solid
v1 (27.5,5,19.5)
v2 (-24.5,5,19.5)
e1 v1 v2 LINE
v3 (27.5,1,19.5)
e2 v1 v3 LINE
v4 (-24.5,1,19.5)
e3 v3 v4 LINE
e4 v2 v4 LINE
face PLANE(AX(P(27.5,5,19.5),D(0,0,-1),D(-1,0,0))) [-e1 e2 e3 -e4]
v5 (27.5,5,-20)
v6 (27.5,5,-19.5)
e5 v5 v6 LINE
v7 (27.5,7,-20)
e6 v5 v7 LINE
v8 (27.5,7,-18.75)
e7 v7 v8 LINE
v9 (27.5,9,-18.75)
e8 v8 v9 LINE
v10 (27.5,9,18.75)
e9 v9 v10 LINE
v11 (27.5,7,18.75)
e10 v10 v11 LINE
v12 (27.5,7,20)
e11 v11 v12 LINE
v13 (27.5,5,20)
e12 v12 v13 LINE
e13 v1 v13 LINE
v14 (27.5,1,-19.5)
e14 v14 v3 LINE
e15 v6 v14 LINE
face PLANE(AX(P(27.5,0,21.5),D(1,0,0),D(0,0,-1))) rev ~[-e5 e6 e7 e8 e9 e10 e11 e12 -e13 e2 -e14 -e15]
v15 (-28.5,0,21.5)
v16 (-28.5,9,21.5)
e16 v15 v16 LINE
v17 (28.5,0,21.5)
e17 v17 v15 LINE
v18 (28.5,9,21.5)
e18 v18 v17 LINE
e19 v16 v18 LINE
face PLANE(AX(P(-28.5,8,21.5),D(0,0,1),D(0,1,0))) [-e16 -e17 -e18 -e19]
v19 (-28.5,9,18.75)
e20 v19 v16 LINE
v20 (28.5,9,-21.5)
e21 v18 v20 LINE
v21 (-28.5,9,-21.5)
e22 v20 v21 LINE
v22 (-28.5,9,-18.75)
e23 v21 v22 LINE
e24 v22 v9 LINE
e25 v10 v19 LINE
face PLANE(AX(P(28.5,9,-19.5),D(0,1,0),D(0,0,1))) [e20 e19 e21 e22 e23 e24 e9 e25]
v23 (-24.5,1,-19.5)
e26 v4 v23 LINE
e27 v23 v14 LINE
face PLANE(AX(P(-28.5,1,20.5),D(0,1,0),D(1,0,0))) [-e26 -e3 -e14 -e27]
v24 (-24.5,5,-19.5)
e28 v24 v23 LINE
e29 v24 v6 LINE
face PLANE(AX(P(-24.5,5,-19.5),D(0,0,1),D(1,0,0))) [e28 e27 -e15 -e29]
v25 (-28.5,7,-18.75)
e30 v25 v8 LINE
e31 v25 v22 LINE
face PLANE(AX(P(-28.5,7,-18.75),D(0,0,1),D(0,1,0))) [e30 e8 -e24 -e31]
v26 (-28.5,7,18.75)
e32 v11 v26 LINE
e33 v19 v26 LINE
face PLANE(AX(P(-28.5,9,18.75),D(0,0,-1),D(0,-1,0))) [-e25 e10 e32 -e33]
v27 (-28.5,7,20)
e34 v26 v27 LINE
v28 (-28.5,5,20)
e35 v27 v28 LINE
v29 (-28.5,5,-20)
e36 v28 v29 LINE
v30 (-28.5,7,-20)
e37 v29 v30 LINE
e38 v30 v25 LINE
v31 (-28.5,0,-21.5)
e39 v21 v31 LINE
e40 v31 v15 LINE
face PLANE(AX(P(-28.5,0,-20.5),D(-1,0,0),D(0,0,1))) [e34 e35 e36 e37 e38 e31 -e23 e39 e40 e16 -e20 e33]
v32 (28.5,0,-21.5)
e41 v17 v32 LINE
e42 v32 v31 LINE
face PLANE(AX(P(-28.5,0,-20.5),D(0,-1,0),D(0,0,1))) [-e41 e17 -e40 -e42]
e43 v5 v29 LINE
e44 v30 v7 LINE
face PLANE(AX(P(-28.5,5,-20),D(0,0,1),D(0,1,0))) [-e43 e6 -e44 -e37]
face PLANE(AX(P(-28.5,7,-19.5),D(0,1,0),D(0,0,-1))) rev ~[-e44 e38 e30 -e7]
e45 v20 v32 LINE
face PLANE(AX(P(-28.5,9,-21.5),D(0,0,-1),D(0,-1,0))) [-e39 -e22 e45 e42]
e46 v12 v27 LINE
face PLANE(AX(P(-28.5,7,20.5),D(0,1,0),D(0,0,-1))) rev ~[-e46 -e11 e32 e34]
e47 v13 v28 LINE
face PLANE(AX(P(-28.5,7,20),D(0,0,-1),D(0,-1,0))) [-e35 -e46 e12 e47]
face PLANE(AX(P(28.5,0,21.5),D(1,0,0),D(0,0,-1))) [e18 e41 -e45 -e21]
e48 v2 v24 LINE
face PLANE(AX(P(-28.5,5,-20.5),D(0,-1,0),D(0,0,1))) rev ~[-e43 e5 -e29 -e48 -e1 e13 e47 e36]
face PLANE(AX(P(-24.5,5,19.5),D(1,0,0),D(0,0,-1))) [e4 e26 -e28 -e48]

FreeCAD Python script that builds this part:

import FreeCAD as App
import Part
import Sketcher
from FreeCAD import Vector


def add_polygon(sketch, points):
    """Adds a closed chain of lines whose ends are joined by coincident constraints."""
    first, n = sketch.GeometryCount, len(points)
    for a, b in zip(points, points[1:] + points[:1]):
        sketch.addGeometry(Part.LineSegment(App.Vector(*a, 0), App.Vector(*b, 0)), False)
    for i in range(n):
        sketch.addConstraint(Sketcher.Constraint("Coincident", first + i, 2, first + (i + 1) % n, 1))

doc = App.newDocument("Part")
params = doc.addObject("Spreadsheet::Sheet", "Params")
for row, (alias, value) in enumerate([
    ("sketch1_width", "57 mm"),
    ("sketch1_height", "41 mm"),
    ("pad1_length", "8 mm"),
    ("sketch2_width", "51 mm"),
    ("sketch2_height", "35 mm"),
    ("pocket1_length", "6 mm"),
    ("sketch3_height", "35 mm"),
    ("sketch3_width", "4 mm"),
    ("pocket2_length", "6 mm"),
    ("sketch4_width", "1 mm"),
    ("pocket3_length", "55 mm"),
    ("sketch5_width", "1 mm"),
    ("pocket4_length", "55 mm"),
    ("sketch6_width", "1 mm"),
    ("pocket5_length", "55 mm"),
    ("sketch7_width", "1 mm"),
    ("pocket6_length", "55 mm"),
    ("sketch8_width", "1 mm"),
    ("sketch8_width2", "4 mm"),
    ("sketch8_height", "37 mm"),
    ("sketch8_height2", "2 mm"),
    ("pocket7_length", "1 mm"),
    ("sketch9_width", "4 mm"),
    ("sketch9_height", "35 mm"),
    ("pad2_length", "4 mm"),
    ("sketch10_width", "2 mm"),
    ("sketch10_height", "1 mm"),
    ("sketch10_width2", "9 mm"),
    ("pad3_length", "57 mm"),
    ("sketch11_width", "1 mm"),
    ("sketch11_width2", "2 mm"),
    ("sketch11_height", "41 mm"),
    ("pocket8_length", "56 mm"),
    ("sketch12_width", "1 mm"),
    ("sketch12_height", "39 mm"),
    ("pad4_length", "1 mm"),
    ("sketch13_width", "52 mm"),
    ("sketch13_height", "39 mm"),
    ("pocket9_length", "4 mm"),
    ("sketch14_width", "2 mm"),
    ("sketch14_height", "40 mm"),
    ("sketch14_height2", "1.25 mm"),
    ("sketch14_width2", "9 mm"),
    ("sketch14_height3", "43 mm"),
    ("pad5_length", "4 mm"),
    ("sketch15_width", "2 mm"),
    ("sketch15_height", "0.5 mm"),
    ("sketch15_height2", "0.75 mm"),
    ("pad6_length", "53 mm"),
], start=1):
    params.set(f"A{row}", alias)
    params.set(f"B{row}", "=" + value)
    params.setAlias(f"B{row}", alias)

body = doc.addObject("PartDesign::Body", "Body")

# Sketch on XZ plane
sketch1 = body.newObject("Sketcher::SketchObject", "Sketch")
sketch1.AttachmentSupport = (doc.getObject("XZ_Plane"), [""])
sketch1.MapMode = "FlatFace"
add_polygon(sketch1, [(-28.5, -20.5), (-28.5, 20.5), (28.5, 20.5), (28.5, -20.5)])  # lines 0-3
sketch1.addConstraint([
    Sketcher.Constraint("Vertical", 0),
    Sketcher.Constraint("Horizontal", 1),
    Sketcher.Constraint("Vertical", 2),
    Sketcher.Constraint("Horizontal", 3),
    Sketcher.Constraint("Symmetric", 0, 2, 2, 2, -1, 1),
    Sketcher.Constraint("DistanceX", 1, 1, 1, 2, 57.0),
    Sketcher.Constraint("DistanceY", 0, 1, 0, 2, 41.0),
])
sketch1.setExpression("Constraints[9]", "Params.sketch1_width")
sketch1.setExpression("Constraints[10]", "Params.sketch1_height")
pad1 = body.newObject("PartDesign::Pad", "Pad")
pad1.Profile = sketch1
pad1.setExpression("Length", "Params.pad1_length")
pad1.Reversed = True

# Sketch on XZ plane
sketch2 = body.newObject("Sketcher::SketchObject", "Sketch001")
sketch2.AttachmentSupport = (doc.getObject("XZ_Plane"), [""])
sketch2.MapMode = "FlatFace"
sketch2.AttachmentOffset = App.Placement(Vector(0, 0, -8), App.Rotation())
add_polygon(sketch2, [(-24.5, 17.5), (26.5, 17.5), (26.5, -17.5), (-24.5, -17.5)])  # lines 0-3
sketch2.addConstraint([
    Sketcher.Constraint("Horizontal", 0),
    Sketcher.Constraint("Vertical", 1),
    Sketcher.Constraint("Horizontal", 2),
    Sketcher.Constraint("Vertical", 3),
    Sketcher.Constraint("DistanceX", 0, 1, 0, 2, 51.0),
    Sketcher.Constraint("DistanceY", 1, 2, 1, 1, 35.0),
    Sketcher.Constraint("DistanceX", -1, 1, 0, 2, 26.5),
    Sketcher.Constraint("DistanceY", -1, 1, 0, 2, 17.5),
])
sketch2.setExpression("Constraints[8]", "Params.sketch2_width")
sketch2.setExpression("Constraints[9]", "Params.sketch2_height")
pocket1 = body.newObject("PartDesign::Pocket", "Pocket")
pocket1.Profile = sketch2
pocket1.setExpression("Length", "Params.pocket1_length")
pocket1.Reversed = True

# Sketch on XZ plane
sketch3 = body.newObject("Sketcher::SketchObject", "Sketch002")
sketch3.AttachmentSupport = (doc.getObject("XZ_Plane"), [""])
sketch3.MapMode = "FlatFace"
sketch3.AttachmentOffset = App.Placement(Vector(0, 0, -8), App.Rotation())
add_polygon(sketch3, [(-28.5, 17.5), (-24.5, 17.5), (-24.5, -17.5), (-28.5, -17.5)])  # lines 0-3
sketch3.addConstraint([
    Sketcher.Constraint("Horizontal", 0),
    Sketcher.Constraint("Vertical", 1),
    Sketcher.Constraint("Horizontal", 2),
    Sketcher.Constraint("Vertical", 3),
    Sketcher.Constraint("DistanceY", 1, 2, 1, 1, 35.0),
    Sketcher.Constraint("DistanceX", 0, 1, 0, 2, 4.0),
    Sketcher.Constraint("DistanceX", 0, 2, -1, 1, 24.5),
    Sketcher.Constraint("DistanceY", -1, 1, 0, 2, 17.5),
])
sketch3.setExpression("Constraints[8]", "Params.sketch3_height")
sketch3.setExpression("Constraints[9]", "Params.sketch3_width")
pocket2 = body.newObject("PartDesign::Pocket", "Pocket001")
pocket2.Profile = sketch3
pocket2.setExpression("Length", "Params.pocket2_length")
pocket2.Reversed = True

# Sketch on YZ plane
sketch4 = body.newObject("Sketcher::SketchObject", "Sketch003")
sketch4.AttachmentSupport = (doc.getObject("YZ_Plane"), [""])
sketch4.MapMode = "FlatFace"
sketch4.AttachmentOffset = App.Placement(Vector(0, 0, -28.5), App.Rotation())
add_polygon(sketch4, [(6, -17.5), (7, -17.5), (7, -18.5), (6, -18.5)])  # lines 0-3
sketch4.addConstraint([
    Sketcher.Constraint("Horizontal", 0),
    Sketcher.Constraint("Vertical", 1),
    Sketcher.Constraint("Horizontal", 2),
    Sketcher.Constraint("Vertical", 3),
    Sketcher.Constraint("Equal", 2, 1),
    Sketcher.Constraint("DistanceX", 0, 1, 0, 2, 1.0),
    Sketcher.Constraint("DistanceX", -1, 1, 0, 2, 7.0),
    Sketcher.Constraint("DistanceY", 0, 2, -1, 1, 17.5),
])
sketch4.setExpression("Constraints[9]", "Params.sketch4_width")
pocket3 = body.newObject("PartDesign::Pocket", "Pocket002")
pocket3.Profile = sketch4
pocket3.setExpression("Length", "Params.pocket3_length")
pocket3.Reversed = True

# Sketch on YZ plane
sketch5 = body.newObject("Sketcher::SketchObject", "Sketch004")
sketch5.AttachmentSupport = (doc.getObject("YZ_Plane"), [""])
sketch5.MapMode = "FlatFace"
sketch5.AttachmentOffset = App.Placement(Vector(0, 0, -28.5), App.Rotation())
add_polygon(sketch5, [(7, 18.5), (7, 17.5), (6, 17.5), (6, 18.5)])  # lines 0-3
sketch5.addConstraint([
    Sketcher.Constraint("Vertical", 0),
    Sketcher.Constraint("Horizontal", 1),
    Sketcher.Constraint("Vertical", 2),
    Sketcher.Constraint("Horizontal", 3),
    Sketcher.Constraint("Equal", 3, 0),
    Sketcher.Constraint("DistanceX", 1, 2, 1, 1, 1.0),
    Sketcher.Constraint("DistanceX", -1, 1, 0, 2, 7.0),
    Sketcher.Constraint("DistanceY", -1, 1, 0, 2, 17.5),
])
sketch5.setExpression("Constraints[9]", "Params.sketch5_width")
pocket4 = body.newObject("PartDesign::Pocket", "Pocket003")
pocket4.Profile = sketch5
pocket4.setExpression("Length", "Params.pocket4_length")
pocket4.Reversed = True

# Sketch on YZ plane
sketch6 = body.newObject("Sketcher::SketchObject", "Sketch005")
sketch6.AttachmentSupport = (doc.getObject("YZ_Plane"), [""])
sketch6.MapMode = "FlatFace"
sketch6.AttachmentOffset = App.Placement(Vector(0, 0, -28.5), App.Rotation())
add_polygon(sketch6, [(8, -17.5), (8, -18.5), (7, -18.5), (7, -19.5), (6, -19.5), (6, -17.5)])  # lines 0-5
sketch6.addConstraint([
    Sketcher.Constraint("Vertical", 0),
    Sketcher.Constraint("Horizontal", 1),
    Sketcher.Constraint("Vertical", 2),
    Sketcher.Constraint("Horizontal", 3),
    Sketcher.Constraint("Vertical", 4),
    Sketcher.Constraint("Horizontal", 5),
    Sketcher.Constraint("Equal", 1, 3),
    Sketcher.Constraint("Equal", 3, 0),
    Sketcher.Constraint("Equal", 0, 2),
    Sketcher.Constraint("DistanceX", 1, 2, 1, 1, 1.0),
    Sketcher.Constraint("DistanceX", -1, 1, 0, 2, 8.0),
    Sketcher.Constraint("DistanceY", 0, 2, -1, 1, 18.5),
])
sketch6.setExpression("Constraints[15]", "Params.sketch6_width")
pocket5 = body.newObject("PartDesign::Pocket", "Pocket004")
pocket5.Profile = sketch6
pocket5.setExpression("Length", "Params.pocket5_length")
pocket5.Reversed = True

# Sketch on YZ plane
sketch7 = body.newObject("Sketcher::SketchObject", "Sketch006")
sketch7.AttachmentSupport = (doc.getObject("YZ_Plane"), [""])
sketch7.MapMode = "FlatFace"
sketch7.AttachmentOffset = App.Placement(Vector(0, 0, -28.5), App.Rotation())
add_polygon(sketch7, [(6, 17.5), (6, 19.5), (7, 19.5), (7, 18.5), (8, 18.5), (8, 17.5)])  # lines 0-5
sketch7.addConstraint([
    Sketcher.Constraint("Vertical", 0),
    Sketcher.Constraint("Horizontal", 1),
    Sketcher.Constraint("Vertical", 2),
    Sketcher.Constraint("Horizontal", 3),
    Sketcher.Constraint("Vertical", 4),
    Sketcher.Constraint("Horizontal", 5),
    Sketcher.Constraint("Equal", 1, 3),
    Sketcher.Constraint("Equal", 5, 0),
    Sketcher.Constraint("Equal", 3, 2),
    Sketcher.Constraint("DistanceX", 1, 1, 1, 2, 1.0),
    Sketcher.Constraint("DistanceX", -1, 1, 0, 2, 6.0),
    Sketcher.Constraint("DistanceY", -1, 1, 0, 2, 19.5),
])
sketch7.setExpression("Constraints[15]", "Params.sketch7_width")
pocket6 = body.newObject("PartDesign::Pocket", "Pocket005")
pocket6.Profile = sketch7
pocket6.setExpression("Length", "Params.pocket6_length")
pocket6.Reversed = True

# Sketch on YZ plane
sketch8 = body.newObject("Sketcher::SketchObject", "Sketch007")
sketch8.AttachmentSupport = (doc.getObject("YZ_Plane"), [""])
sketch8.MapMode = "FlatFace"
sketch8.AttachmentOffset = App.Placement(Vector(0, 0, 26.5), App.Rotation())
add_polygon(sketch8, [(8, 18.5), (8, -18.5), (7, -18.5), (7, -19.5), (6, -19.5), (6, -17.5), (2, -17.5), (2, 17.5), (6, 17.5), (6, 19.5), (7, 19.5), (7, 18.5)])  # lines 0-11
sketch8.addConstraint([
    Sketcher.Constraint("Vertical", 0),
    Sketcher.Constraint("Horizontal", 1),
    Sketcher.Constraint("Vertical", 2),
    Sketcher.Constraint("Horizontal", 3),
    Sketcher.Constraint("Vertical", 4),
    Sketcher.Constraint("Horizontal", 5),
    Sketcher.Constraint("Vertical", 6),
    Sketcher.Constraint("Horizontal", 7),
    Sketcher.Constraint("Vertical", 8),
    Sketcher.Constraint("Horizontal", 9),
    Sketcher.Constraint("Vertical", 10),
    Sketcher.Constraint("Horizontal", 11),
    Sketcher.Constraint("Symmetric", 4, 2, 7, 2, -1),
    Sketcher.Constraint("Symmetric", 2, 2, 9, 2, -1),
    Sketcher.Constraint("Equal", 1, 3),
    Sketcher.Constraint("Equal", 11, 2),
    Sketcher.Constraint("Equal", 2, 10),
    Sketcher.Constraint("DistanceX", 1, 2, 1, 1, 1.0),
    Sketcher.Constraint("DistanceX", 5, 2, 5, 1, 4.0),
    Sketcher.Constraint("DistanceY", 0, 2, 0, 1, 37.0),
    Sketcher.Constraint("DistanceY", 4, 1, 4, 2, 2.0),
    Sketcher.Constraint("DistanceX", -1, 1, 0, 2, 8.0),
])
sketch8.setExpression("Constraints[29]", "Params.sketch8_width")
sketch8.setExpression("Constraints[30]", "Params.sketch8_width2")
sketch8.setExpression("Constraints[31]", "Params.sketch8_height")
sketch8.setExpression("Constraints[32]", "Params.sketch8_height2")
pocket7 = body.newObject("PartDesign::Pocket", "Pocket006")
pocket7.Profile = sketch8
pocket7.setExpression("Length", "Params.pocket7_length")
pocket7.Reversed = True

# Sketch on YZ plane
sketch9 = body.newObject("Sketcher::SketchObject", "Sketch008")
sketch9.AttachmentSupport = (doc.getObject("YZ_Plane"), [""])
sketch9.MapMode = "FlatFace"
sketch9.AttachmentOffset = App.Placement(Vector(0, 0, -28.5), App.Rotation())
add_polygon(sketch9, [(6, -17.5), (2, -17.5), (2, 17.5), (6, 17.5)])  # lines 0-3
sketch9.addConstraint([
    Sketcher.Constraint("Horizontal", 0),
    Sketcher.Constraint("Vertical", 1),
    Sketcher.Constraint("Horizontal", 2),
    Sketcher.Constraint("Vertical", 3),
    Sketcher.Constraint("DistanceX", 0, 2, 0, 1, 4.0),
    Sketcher.Constraint("DistanceY", 1, 1, 1, 2, 35.0),
    Sketcher.Constraint("DistanceX", -1, 1, 0, 2, 2.0),
    Sketcher.Constraint("DistanceY", 0, 2, -1, 1, 17.5),
])
sketch9.setExpression("Constraints[8]", "Params.sketch9_width")
sketch9.setExpression("Constraints[9]", "Params.sketch9_height")
pad2 = body.newObject("PartDesign::Pad", "Pad001")
pad2.Profile = sketch9
pad2.setExpression("Length", "Params.pad2_length")

# Sketch on YZ plane
sketch10 = body.newObject("Sketcher::SketchObject", "Sketch009")
sketch10.AttachmentSupport = (doc.getObject("YZ_Plane"), [""])
sketch10.MapMode = "FlatFace"
sketch10.AttachmentOffset = App.Placement(Vector(0, 0, -28.5), App.Rotation())
add_polygon(sketch10, [(5, 20.5), (5, -20.5), (7, -20.5), (7, -19.5), (9, -19.5), (9, -21.5), (0, -21.5), (0, 21.5), (9, 21.5), (9, 19.5), (7, 19.5), (7, 20.5)])  # lines 0-11
sketch10.addConstraint([
    Sketcher.Constraint("Vertical", 0),
    Sketcher.Constraint("Horizontal", 1),
    Sketcher.Constraint("Vertical", 2),
    Sketcher.Constraint("Horizontal", 3),
    Sketcher.Constraint("Vertical", 4),
    Sketcher.Constraint("Horizontal", 5),
    Sketcher.Constraint("Vertical", 6),
    Sketcher.Constraint("Horizontal", 7),
    Sketcher.Constraint("Vertical", 8),
    Sketcher.Constraint("Horizontal", 9),
    Sketcher.Constraint("Vertical", 10),
    Sketcher.Constraint("Horizontal", 11),
    Sketcher.Constraint("Symmetric", 5, 2, 6, 2, -1, 1),
    Sketcher.Constraint("Symmetric", 3, 2, 8, 2, -1),
    Sketcher.Constraint("Symmetric", 1, 2, 10, 2, -1),
    Sketcher.Constraint("Equal", 1, 3),
    Sketcher.Constraint("Equal", 11, 4),
    Sketcher.Constraint("DistanceX", 1, 1, 1, 2, 2.0),
    Sketcher.Constraint("DistanceY", 2, 1, 2, 2, 1.0),
    Sketcher.Constraint("DistanceY", 0, 2, 6, 2, 42.0),
    Sketcher.Constraint("DistanceX", 5, 2, 5, 1, 9.0),
])
sketch10.setExpression("Constraints[29]", "Params.sketch10_width")
sketch10.setExpression("Constraints[30]", "Params.sketch10_height")
sketch10.setExpression("Constraints[32]", "Params.sketch10_width2")
pad3 = body.newObject("PartDesign::Pad", "Pad002")
pad3.Profile = sketch10
pad3.setExpression("Length", "Params.pad3_length")

# Sketch on YZ plane
sketch11 = body.newObject("Sketcher::SketchObject", "Sketch010")
sketch11.AttachmentSupport = (doc.getObject("YZ_Plane"), [""])
sketch11.MapMode = "FlatFace"
sketch11.AttachmentOffset = App.Placement(Vector(0, 0, -28.5), App.Rotation())
add_polygon(sketch11, [(7, 19.5), (8, 19.5), (8, 18.5), (7, 18.5)])  # lines 0-3
add_polygon(sketch11, [(7, 20.5), (7, 19.5), (6, 19.5), (6, -19.5), (7, -19.5), (7, -20.5), (5, -20.5), (5, 20.5)])  # lines 4-11
add_polygon(sketch11, [(7, -18.5), (8, -18.5), (8, -19.5), (7, -19.5)])  # lines 12-15
sketch11.addConstraint([
    Sketcher.Constraint("Horizontal", 0),
    Sketcher.Constraint("Vertical", 1),
    Sketcher.Constraint("Horizontal", 2),
    Sketcher.Constraint("Vertical", 3),
    Sketcher.Constraint("Vertical", 4),
    Sketcher.Constraint("Horizontal", 5),
    Sketcher.Constraint("Vertical", 6),
    Sketcher.Constraint("Horizontal", 7),
    Sketcher.Constraint("Vertical", 8),
    Sketcher.Constraint("Horizontal", 9),
    Sketcher.Constraint("Vertical", 10),
    Sketcher.Constraint("Horizontal", 11),
    Sketcher.Constraint("Horizontal", 12),
    Sketcher.Constraint("Vertical", 13),
    Sketcher.Constraint("Horizontal", 14),
    Sketcher.Constraint("Vertical", 15),
    Sketcher.Constraint("Coincident", 4, 2, 3, 2),
    Sketcher.Constraint("Coincident", 14, 2, 7, 2),
    Sketcher.Constraint("Symmetric", 3, 2, 7, 2, -1),
    Sketcher.Constraint("Symmetric", 1, 2, 12, 2, -1),
    Sketcher.Constraint("Equal", 2, 5),
    Sketcher.Constraint("Equal", 14, 1),
    Sketcher.Constraint("Equal", 3, 4),
    Sketcher.Constraint("Equal", 4, 8),
    Sketcher.Constraint("DistanceX", 0, 1, 0, 2, 1.0),
    Sketcher.Constraint("DistanceX", 9, 2, 9, 1, 2.0),
    Sketcher.Constraint("DistanceY", 10, 1, 10, 2, 41.0),
    Sketcher.Constraint("DistanceX", -1, 1, 0, 2, 8.0),
])
sketch11.setExpression("Constraints[40]", "Params.sketch11_width")
sketch11.setExpression("Constraints[41]", "Params.sketch11_width2")
sketch11.setExpression("Constraints[42]", "Params.sketch11_height")
pocket8 = body.newObject("PartDesign::Pocket", "Pocket007")
pocket8.Profile = sketch11
pocket8.setExpression("Length", "Params.pocket8_length")
pocket8.Reversed = True

# Sketch on YZ plane
sketch12 = body.newObject("Sketcher::SketchObject", "Sketch011")
sketch12.AttachmentSupport = (doc.getObject("YZ_Plane"), [""])
sketch12.MapMode = "FlatFace"
sketch12.AttachmentOffset = App.Placement(Vector(0, 0, 28.5), App.Rotation())
add_polygon(sketch12, [(9, 19.5), (8, 19.5), (8, -19.5), (9, -19.5)])  # lines 0-3
sketch12.addConstraint([
    Sketcher.Constraint("Horizontal", 0),
    Sketcher.Constraint("Vertical", 1),
    Sketcher.Constraint("Horizontal", 2),
    Sketcher.Constraint("Vertical", 3),
    Sketcher.Constraint("DistanceX", 0, 2, 0, 1, 1.0),
    Sketcher.Constraint("DistanceY", 1, 2, 1, 1, 39.0),
    Sketcher.Constraint("DistanceX", -1, 1, 0, 2, 8.0),
    Sketcher.Constraint("DistanceY", -1, 1, 0, 2, 19.5),
])
sketch12.setExpression("Constraints[8]", "Params.sketch12_width")
sketch12.setExpression("Constraints[9]", "Params.sketch12_height")
pad4 = body.newObject("PartDesign::Pad", "Pad003")
pad4.Profile = sketch12
pad4.setExpression("Length", "Params.pad4_length")
pad4.Reversed = True

# Sketch on XZ plane
sketch13 = body.newObject("Sketcher::SketchObject", "Sketch012")
sketch13.AttachmentSupport = (doc.getObject("XZ_Plane"), [""])
sketch13.MapMode = "FlatFace"
sketch13.AttachmentOffset = App.Placement(Vector(0, 0, -5), App.Rotation())
add_polygon(sketch13, [(27.5, -19.5), (-24.5, -19.5), (-24.5, 19.5), (27.5, 19.5)])  # lines 0-3
sketch13.addConstraint([
    Sketcher.Constraint("Horizontal", 0),
    Sketcher.Constraint("Vertical", 1),
    Sketcher.Constraint("Horizontal", 2),
    Sketcher.Constraint("Vertical", 3),
    Sketcher.Constraint("DistanceX", 0, 2, 0, 1, 52.0),
    Sketcher.Constraint("DistanceY", 1, 1, 1, 2, 39.0),
    Sketcher.Constraint("DistanceX", 0, 2, -1, 1, 24.5),
    Sketcher.Constraint("DistanceY", 0, 2, -1, 1, 19.5),
])
sketch13.setExpression("Constraints[8]", "Params.sketch13_width")
sketch13.setExpression("Constraints[9]", "Params.sketch13_height")
pocket9 = body.newObject("PartDesign::Pocket", "Pocket008")
pocket9.Profile = sketch13
pocket9.setExpression("Length", "Params.pocket9_length")
pocket9.Reversed = True

# Sketch on YZ plane
sketch14 = body.newObject("Sketcher::SketchObject", "Sketch013")
sketch14.AttachmentSupport = (doc.getObject("YZ_Plane"), [""])
sketch14.MapMode = "FlatFace"
sketch14.AttachmentOffset = App.Placement(Vector(0, 0, -28.5), App.Rotation())
add_polygon(sketch14, [(9, 21.5), (9, 18.75), (7, 18.75), (7, 20), (5, 20), (5, -20), (7, -20), (7, -18.75), (9, -18.75), (9, -21.5), (0, -21.5), (0, 21.5)])  # lines 0-11
sketch14.addConstraint([
    Sketcher.Constraint("Vertical", 0),
    Sketcher.Constraint("Horizontal", 1),
    Sketcher.Constraint("Vertical", 2),
    Sketcher.Constraint("Horizontal", 3),
    Sketcher.Constraint("Vertical", 4),
    Sketcher.Constraint("Horizontal", 5),
    Sketcher.Constraint("Vertical", 6),
    Sketcher.Constraint("Horizontal", 7),
    Sketcher.Constraint("Vertical", 8),
    Sketcher.Constraint("Horizontal", 9),
    Sketcher.Constraint("Vertical", 10),
    Sketcher.Constraint("Horizontal", 11),
    Sketcher.Constraint("Symmetric", 9, 2, 10, 2, -1, 1),
    Sketcher.Constraint("Symmetric", 2, 2, 5, 2, -1),
    Sketcher.Constraint("Symmetric", 0, 2, 7, 2, -1),
    Sketcher.Constraint("Equal", 1, 3),
    Sketcher.Constraint("DistanceX", 1, 2, 1, 1, 2.0),
    Sketcher.Constraint("DistanceY", 4, 2, 4, 1, 40.0),
    Sketcher.Constraint("DistanceY", 2, 1, 2, 2, 1.25),
    Sketcher.Constraint("DistanceX", 9, 2, 9, 1, 9.0),
    Sketcher.Constraint("DistanceY", 10, 1, 10, 2, 43.0),
])
sketch14.setExpression("Constraints[28]", "Params.sketch14_width")
sketch14.setExpression("Constraints[29]", "Params.sketch14_height")
sketch14.setExpression("Constraints[30]", "Params.sketch14_height2")
sketch14.setExpression("Constraints[31]", "Params.sketch14_width2")
sketch14.setExpression("Constraints[32]", "Params.sketch14_height3")
pad5 = body.newObject("PartDesign::Pad", "Pad004")
pad5.Profile = sketch14
pad5.setExpression("Length", "Params.pad5_length")

# Sketch on YZ plane
sketch15 = body.newObject("Sketcher::SketchObject", "Sketch014")
sketch15.AttachmentSupport = (doc.getObject("YZ_Plane"), [""])
sketch15.MapMode = "FlatFace"
sketch15.AttachmentOffset = App.Placement(Vector(0, 0, -24.5), App.Rotation())
add_polygon(sketch15, [(9, -19.5), (9, -18.75), (7, -18.75), (7, -19.5)])  # lines 0-3
add_polygon(sketch15, [(5, -20), (5, -20.5), (7, -20.5), (7, -20)])  # lines 4-7
add_polygon(sketch15, [(9, 19.5), (7, 19.5), (7, 18.75), (9, 18.75)])  # lines 8-11
add_polygon(sketch15, [(5, 20.5), (5, 20), (7, 20), (7, 20.5)])  # lines 12-15
sketch15.addConstraint([
    Sketcher.Constraint("Vertical", 0),
    Sketcher.Constraint("Horizontal", 1),
    Sketcher.Constraint("Vertical", 2),
    Sketcher.Constraint("Horizontal", 3),
    Sketcher.Constraint("Vertical", 4),
    Sketcher.Constraint("Horizontal", 5),
    Sketcher.Constraint("Vertical", 6),
    Sketcher.Constraint("Horizontal", 7),
    Sketcher.Constraint("Horizontal", 8),
    Sketcher.Constraint("Vertical", 9),
    Sketcher.Constraint("Horizontal", 10),
    Sketcher.Constraint("Vertical", 11),
    Sketcher.Constraint("Vertical", 12),
    Sketcher.Constraint("Horizontal", 13),
    Sketcher.Constraint("Vertical", 14),
    Sketcher.Constraint("Horizontal", 15),
    Sketcher.Constraint("Symmetric", 2, 2, 8, 2, -1),
    Sketcher.Constraint("Symmetric", 0, 2, 10, 2, -1),
    Sketcher.Constraint("Symmetric", 7, 2, 12, 2, -1),
    Sketcher.Constraint("Symmetric", 5, 2, 14, 2, -1),
    Sketcher.Constraint("Vertical", 2, 2, 5, 2),
    Sketcher.Constraint("Equal", 3, 5),
    Sketcher.Constraint("DistanceX", 1, 2, 1, 1, 2.0),
    Sketcher.Constraint("DistanceY", 4, 2, 4, 1, 0.5),
    Sketcher.Constraint("DistanceX", -1, 1, 0, 2, 9.0),
    Sketcher.Constraint("DistanceY", 6, 2, -1, 1, 20.0),
    Sketcher.Constraint("DistanceY", 4, 2, 2, 2, 1.0),
    Sketcher.Constraint("DistanceY", 0, 1, 0, 2, 0.75),
])
sketch15.setExpression("Constraints[38]", "Params.sketch15_width")
sketch15.setExpression("Constraints[39]", "Params.sketch15_height")
sketch15.setExpression("Constraints[43]", "Params.sketch15_height2")
pad6 = body.newObject("PartDesign::Pad", "Pad005")
pad6.Profile = sketch15
pad6.setExpression("Length", "Params.pad6_length")

doc.recompute()
